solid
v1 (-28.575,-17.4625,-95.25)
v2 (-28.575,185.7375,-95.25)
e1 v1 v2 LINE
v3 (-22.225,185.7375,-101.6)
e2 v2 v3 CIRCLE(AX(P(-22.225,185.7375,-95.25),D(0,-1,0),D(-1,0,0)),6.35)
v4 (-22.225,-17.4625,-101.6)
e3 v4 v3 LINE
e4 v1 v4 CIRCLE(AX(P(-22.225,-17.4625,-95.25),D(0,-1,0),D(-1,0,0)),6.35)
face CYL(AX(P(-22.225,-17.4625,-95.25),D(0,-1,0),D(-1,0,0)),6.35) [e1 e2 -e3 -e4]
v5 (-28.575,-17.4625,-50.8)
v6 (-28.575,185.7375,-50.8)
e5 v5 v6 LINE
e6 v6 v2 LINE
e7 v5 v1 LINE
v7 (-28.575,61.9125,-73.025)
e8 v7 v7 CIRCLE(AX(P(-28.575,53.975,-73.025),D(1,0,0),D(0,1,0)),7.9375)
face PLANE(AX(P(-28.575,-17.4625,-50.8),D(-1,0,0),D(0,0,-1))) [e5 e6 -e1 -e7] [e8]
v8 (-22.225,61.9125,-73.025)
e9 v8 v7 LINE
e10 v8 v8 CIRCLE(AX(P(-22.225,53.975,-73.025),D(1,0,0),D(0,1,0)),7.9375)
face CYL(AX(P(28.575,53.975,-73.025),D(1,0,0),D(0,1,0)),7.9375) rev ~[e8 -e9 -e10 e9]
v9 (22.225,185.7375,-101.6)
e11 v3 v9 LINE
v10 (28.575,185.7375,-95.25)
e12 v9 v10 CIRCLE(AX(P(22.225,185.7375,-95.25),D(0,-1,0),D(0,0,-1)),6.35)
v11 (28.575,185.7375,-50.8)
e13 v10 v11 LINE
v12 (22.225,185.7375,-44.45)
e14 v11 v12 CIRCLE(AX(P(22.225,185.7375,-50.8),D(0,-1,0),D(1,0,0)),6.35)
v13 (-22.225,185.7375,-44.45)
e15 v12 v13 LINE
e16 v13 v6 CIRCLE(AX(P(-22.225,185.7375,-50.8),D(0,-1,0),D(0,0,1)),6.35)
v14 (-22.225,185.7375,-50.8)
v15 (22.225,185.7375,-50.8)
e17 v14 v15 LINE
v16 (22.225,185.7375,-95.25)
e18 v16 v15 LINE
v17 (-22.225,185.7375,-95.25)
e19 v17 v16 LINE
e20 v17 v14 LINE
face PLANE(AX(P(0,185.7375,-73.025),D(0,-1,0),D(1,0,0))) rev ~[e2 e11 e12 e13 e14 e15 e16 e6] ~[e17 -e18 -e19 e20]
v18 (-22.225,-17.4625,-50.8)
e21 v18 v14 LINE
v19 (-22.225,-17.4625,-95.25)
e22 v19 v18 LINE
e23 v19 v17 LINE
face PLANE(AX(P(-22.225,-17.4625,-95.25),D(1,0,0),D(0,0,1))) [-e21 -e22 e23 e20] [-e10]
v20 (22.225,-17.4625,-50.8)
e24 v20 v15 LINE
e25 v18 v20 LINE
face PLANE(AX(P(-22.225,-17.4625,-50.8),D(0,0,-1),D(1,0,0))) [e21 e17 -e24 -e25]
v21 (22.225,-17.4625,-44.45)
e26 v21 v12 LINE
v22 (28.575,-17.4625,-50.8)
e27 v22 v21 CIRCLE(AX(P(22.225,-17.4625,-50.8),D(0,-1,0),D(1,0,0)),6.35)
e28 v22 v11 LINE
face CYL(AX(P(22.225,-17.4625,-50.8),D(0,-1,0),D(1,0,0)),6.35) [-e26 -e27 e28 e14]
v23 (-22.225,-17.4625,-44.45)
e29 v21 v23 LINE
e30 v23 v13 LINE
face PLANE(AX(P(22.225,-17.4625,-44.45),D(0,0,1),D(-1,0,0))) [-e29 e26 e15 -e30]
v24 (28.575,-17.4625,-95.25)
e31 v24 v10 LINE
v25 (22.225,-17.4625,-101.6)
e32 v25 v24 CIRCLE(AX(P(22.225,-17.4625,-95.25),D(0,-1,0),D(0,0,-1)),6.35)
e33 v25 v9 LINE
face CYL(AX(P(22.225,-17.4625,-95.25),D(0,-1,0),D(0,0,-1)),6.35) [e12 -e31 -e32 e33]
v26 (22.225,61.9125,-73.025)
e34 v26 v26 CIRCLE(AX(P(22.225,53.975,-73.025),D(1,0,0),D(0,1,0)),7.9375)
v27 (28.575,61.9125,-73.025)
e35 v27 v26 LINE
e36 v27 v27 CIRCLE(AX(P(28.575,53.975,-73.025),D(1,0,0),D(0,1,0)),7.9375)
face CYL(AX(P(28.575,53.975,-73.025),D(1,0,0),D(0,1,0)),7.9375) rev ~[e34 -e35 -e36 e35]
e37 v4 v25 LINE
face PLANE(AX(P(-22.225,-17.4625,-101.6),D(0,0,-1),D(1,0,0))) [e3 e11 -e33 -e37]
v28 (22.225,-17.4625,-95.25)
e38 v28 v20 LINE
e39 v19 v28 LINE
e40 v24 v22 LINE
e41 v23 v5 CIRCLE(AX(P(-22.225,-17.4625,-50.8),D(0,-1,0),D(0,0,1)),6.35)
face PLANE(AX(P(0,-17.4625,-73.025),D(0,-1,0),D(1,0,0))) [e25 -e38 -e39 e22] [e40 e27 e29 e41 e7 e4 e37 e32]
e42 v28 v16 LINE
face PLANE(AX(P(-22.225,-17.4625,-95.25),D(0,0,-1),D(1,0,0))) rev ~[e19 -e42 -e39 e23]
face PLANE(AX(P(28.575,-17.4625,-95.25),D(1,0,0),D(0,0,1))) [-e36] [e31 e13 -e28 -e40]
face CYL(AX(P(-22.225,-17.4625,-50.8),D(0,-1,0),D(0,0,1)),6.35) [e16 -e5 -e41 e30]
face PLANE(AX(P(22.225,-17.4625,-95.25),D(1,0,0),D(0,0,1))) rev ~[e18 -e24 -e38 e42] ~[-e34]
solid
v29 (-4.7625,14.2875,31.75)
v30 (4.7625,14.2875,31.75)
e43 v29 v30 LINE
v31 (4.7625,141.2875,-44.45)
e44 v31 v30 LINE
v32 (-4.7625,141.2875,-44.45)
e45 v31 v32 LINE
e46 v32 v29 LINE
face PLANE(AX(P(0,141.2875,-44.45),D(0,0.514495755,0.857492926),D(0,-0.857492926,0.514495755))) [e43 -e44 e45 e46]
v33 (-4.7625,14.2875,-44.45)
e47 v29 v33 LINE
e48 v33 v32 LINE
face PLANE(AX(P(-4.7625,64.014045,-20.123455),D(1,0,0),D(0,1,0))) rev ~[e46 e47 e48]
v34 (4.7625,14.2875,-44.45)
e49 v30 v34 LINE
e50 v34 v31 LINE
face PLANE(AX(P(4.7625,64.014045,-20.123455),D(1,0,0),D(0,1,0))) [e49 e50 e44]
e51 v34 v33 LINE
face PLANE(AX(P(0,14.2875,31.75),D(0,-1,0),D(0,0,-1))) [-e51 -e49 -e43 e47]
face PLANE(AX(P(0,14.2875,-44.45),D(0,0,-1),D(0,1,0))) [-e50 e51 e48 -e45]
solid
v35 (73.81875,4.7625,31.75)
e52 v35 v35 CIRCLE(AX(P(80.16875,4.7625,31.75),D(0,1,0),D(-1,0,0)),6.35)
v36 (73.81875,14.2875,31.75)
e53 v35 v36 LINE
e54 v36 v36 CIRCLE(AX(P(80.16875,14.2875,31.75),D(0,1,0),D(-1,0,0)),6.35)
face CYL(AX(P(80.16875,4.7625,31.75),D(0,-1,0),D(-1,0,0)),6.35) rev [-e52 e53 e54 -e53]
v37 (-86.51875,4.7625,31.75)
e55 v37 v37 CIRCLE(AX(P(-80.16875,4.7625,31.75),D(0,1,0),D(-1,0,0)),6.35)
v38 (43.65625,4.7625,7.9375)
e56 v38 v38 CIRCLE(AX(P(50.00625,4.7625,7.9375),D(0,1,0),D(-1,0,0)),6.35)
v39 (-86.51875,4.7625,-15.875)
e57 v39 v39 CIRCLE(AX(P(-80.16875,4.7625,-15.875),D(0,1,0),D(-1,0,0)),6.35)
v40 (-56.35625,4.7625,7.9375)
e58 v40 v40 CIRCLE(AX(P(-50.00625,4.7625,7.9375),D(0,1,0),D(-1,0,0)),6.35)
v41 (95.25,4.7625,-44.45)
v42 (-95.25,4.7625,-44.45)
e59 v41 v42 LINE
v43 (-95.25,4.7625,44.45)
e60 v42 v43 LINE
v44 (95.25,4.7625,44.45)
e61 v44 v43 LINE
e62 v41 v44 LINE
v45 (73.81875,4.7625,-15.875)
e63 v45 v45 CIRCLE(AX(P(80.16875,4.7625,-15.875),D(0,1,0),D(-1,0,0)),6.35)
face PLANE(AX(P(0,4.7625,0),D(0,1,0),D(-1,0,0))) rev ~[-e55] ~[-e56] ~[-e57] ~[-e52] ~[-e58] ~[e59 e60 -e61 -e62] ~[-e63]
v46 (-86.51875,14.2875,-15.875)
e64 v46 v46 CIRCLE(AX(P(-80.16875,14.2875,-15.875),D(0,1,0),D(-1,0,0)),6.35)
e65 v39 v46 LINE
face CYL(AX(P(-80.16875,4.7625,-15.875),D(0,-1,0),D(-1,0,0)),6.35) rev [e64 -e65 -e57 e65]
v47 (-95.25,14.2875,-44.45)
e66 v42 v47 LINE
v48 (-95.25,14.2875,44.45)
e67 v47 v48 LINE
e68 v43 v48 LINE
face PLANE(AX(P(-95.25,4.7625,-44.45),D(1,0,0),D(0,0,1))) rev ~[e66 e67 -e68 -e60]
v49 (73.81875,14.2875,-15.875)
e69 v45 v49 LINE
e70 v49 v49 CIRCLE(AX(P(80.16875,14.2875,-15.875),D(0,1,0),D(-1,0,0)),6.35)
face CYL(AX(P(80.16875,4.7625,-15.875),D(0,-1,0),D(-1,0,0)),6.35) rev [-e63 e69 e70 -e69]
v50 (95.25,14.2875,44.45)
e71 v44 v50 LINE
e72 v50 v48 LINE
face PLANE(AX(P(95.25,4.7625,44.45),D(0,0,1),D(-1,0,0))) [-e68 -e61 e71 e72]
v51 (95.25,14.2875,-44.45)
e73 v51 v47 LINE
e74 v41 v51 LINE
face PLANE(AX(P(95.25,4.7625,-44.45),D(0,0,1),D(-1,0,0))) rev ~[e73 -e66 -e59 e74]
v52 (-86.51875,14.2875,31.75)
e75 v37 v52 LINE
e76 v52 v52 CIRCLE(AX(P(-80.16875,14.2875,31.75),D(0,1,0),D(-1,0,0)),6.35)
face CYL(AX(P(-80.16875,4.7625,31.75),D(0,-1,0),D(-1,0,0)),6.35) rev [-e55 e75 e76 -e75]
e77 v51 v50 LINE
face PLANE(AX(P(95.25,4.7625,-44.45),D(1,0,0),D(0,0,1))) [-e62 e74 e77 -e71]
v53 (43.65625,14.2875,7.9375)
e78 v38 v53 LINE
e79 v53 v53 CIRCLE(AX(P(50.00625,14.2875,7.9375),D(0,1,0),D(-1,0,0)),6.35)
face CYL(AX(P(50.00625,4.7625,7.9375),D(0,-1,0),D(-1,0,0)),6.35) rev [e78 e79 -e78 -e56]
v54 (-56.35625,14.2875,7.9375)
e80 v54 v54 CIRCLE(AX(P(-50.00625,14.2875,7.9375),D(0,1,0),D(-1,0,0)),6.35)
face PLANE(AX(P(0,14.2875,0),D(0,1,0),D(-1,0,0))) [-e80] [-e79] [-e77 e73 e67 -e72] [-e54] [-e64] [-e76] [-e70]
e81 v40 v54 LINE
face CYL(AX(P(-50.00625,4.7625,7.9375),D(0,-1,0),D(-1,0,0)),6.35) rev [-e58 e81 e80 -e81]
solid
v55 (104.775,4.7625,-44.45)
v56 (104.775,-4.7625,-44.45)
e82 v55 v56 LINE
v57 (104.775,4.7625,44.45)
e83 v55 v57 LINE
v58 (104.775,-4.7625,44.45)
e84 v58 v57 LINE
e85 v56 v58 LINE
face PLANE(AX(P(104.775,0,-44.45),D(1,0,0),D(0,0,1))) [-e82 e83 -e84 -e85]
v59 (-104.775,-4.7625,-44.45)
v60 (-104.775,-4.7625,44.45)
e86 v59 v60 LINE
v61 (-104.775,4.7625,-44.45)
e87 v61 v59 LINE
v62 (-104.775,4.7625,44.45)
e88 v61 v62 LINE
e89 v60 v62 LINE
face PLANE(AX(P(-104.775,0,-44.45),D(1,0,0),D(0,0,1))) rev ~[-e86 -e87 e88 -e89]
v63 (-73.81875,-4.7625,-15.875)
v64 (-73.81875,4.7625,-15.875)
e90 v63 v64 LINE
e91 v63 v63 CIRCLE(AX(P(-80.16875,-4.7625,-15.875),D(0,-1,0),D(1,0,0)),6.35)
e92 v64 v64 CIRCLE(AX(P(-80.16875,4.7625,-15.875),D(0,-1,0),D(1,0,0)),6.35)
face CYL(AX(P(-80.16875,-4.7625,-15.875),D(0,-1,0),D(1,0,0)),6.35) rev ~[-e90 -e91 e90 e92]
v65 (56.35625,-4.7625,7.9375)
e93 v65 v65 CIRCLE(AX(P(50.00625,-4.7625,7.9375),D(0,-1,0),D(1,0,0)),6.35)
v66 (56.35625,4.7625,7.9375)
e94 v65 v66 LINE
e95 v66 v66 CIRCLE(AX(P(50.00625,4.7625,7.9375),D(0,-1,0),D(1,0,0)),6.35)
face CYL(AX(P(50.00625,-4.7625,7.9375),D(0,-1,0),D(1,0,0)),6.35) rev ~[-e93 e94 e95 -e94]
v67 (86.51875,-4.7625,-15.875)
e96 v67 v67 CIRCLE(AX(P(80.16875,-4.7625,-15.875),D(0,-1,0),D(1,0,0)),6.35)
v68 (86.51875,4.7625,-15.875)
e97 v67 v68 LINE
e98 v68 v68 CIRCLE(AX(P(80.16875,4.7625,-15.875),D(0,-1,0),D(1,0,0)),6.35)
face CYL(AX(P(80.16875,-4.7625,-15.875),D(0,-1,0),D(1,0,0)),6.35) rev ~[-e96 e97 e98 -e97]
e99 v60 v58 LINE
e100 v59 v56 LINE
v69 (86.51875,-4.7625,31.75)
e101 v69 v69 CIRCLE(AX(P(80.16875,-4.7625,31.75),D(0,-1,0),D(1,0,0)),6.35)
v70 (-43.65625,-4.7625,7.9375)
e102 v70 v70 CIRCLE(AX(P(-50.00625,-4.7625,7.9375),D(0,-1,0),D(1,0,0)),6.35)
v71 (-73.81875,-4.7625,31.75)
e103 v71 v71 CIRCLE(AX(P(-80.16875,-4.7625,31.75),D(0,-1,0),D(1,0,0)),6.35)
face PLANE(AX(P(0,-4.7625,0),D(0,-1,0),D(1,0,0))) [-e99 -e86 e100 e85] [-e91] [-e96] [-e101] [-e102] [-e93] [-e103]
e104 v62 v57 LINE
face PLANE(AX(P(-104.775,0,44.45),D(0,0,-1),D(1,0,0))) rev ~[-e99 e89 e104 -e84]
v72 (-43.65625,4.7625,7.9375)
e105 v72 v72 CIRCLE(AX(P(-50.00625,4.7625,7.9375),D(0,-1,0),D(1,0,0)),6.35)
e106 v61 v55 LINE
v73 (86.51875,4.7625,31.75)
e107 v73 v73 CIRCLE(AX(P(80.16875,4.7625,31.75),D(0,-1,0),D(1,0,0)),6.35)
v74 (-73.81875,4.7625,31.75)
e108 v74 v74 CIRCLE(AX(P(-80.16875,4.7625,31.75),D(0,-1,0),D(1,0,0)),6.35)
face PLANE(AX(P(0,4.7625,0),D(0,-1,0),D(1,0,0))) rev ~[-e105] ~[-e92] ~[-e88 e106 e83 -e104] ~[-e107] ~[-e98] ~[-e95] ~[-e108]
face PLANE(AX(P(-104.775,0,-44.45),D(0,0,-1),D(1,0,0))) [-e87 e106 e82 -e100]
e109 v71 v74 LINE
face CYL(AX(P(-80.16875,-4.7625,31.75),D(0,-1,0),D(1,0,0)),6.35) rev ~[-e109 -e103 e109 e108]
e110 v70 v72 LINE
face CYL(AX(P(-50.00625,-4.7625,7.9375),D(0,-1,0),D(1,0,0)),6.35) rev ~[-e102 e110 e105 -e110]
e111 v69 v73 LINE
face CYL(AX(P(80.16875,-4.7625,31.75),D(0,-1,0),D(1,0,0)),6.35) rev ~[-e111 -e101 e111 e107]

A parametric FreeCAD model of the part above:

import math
import FreeCAD as App
import Part
import Sketcher

V = App.Vector
Q = App.Units.Quantity

doc = App.newDocument("Part")
body = doc.addObject("PartDesign::Body", "Body")

# Sketch on XZ plane
sketch1 = body.newObject("Sketcher::SketchObject", "Sketch")
sketch1.AttachmentSupport = (doc.getObject("XZ_Plane"), [""])
sketch1.MapMode = "FlatFace"
sketch1.addGeometry([
    Part.LineSegment(V(-105, 44, 0), V(-105, -44, 0)),
    Part.LineSegment(V(-105, -44, 0), V(105, -44, 0)),
    Part.LineSegment(V(105, -44, 0), V(105, 44, 0)),
    Part.LineSegment(V(105, 44, 0), V(-105, 44, 0)),
], False)
sketch1.addConstraint([
    Sketcher.Constraint("Coincident", 0, 2, 1, 1),
    Sketcher.Constraint("Coincident", 1, 2, 2, 1),
    Sketcher.Constraint("Coincident", 2, 2, 3, 1),
    Sketcher.Constraint("Coincident", 3, 2, 0, 1),
    Sketcher.Constraint("Vertical", 0),
    Sketcher.Constraint("Horizontal", 1),
    Sketcher.Constraint("Vertical", 2),
    Sketcher.Constraint("Horizontal", 3),
    Sketcher.Constraint("Symmetric", 0, 2, 2, 2, -1, 1),
    Sketcher.Constraint("DistanceY", 0, 2, 0, 1, Q("3.5 in")),
    Sketcher.Constraint("DistanceX", 1, 1, 1, 2, Q("8.25 in")),
])
pad1 = body.newObject("PartDesign::Pad", "Pad")
pad1.Profile = sketch1
pad1.Length = Q("0.375 in")
pad1.Midplane = True

# Sketch on XZ plane
sketch2 = body.newObject("Sketcher::SketchObject", "Sketch001")
sketch2.AttachmentSupport = (doc.getObject("XZ_Plane"), [""])
sketch2.MapMode = "FlatFace"
sketch2.AttachmentOffset = App.Placement(V(0, 0, 0.1875 * 25.4), App.Rotation())
sketch2.addGeometry([
    Part.Circle(V(-80, 32, 0), V(0, 0, 1), 6),  # 0
    Part.Circle(V(-50, 8, 0), V(0, 0, 1), 6),  # 1
    Part.Circle(V(-80, -16, 0), V(0, 0, 1), 6),  # 2
    Part.Circle(V(80, 32, 0), V(0, 0, 1), 6),  # 3
    Part.Circle(V(50, 8, 0), V(0, 0, 1), 6),  # 4
    Part.Circle(V(80, -16, 0), V(0, 0, 1), 6),  # 5
], False)
sketch2.addConstraint([
    Sketcher.Constraint("Equal", 0, 1),
    Sketcher.Constraint("Equal", 1, 2),
    Sketcher.Constraint("Equal", 2, 3),
    Sketcher.Constraint("Equal", 3, 4),
    Sketcher.Constraint("Equal", 4, 5),
    Sketcher.Constraint("Symmetric", 0, 3, 3, 3, -2),
    Sketcher.Constraint("Symmetric", 1, 3, 4, 3, -2),
    Sketcher.Constraint("Symmetric", 2, 3, 5, 3, -2),
    Sketcher.Constraint("Vertical", 0, 3, 2, 3),
    Sketcher.Constraint("Diameter", 0, Q("0.5 in")),
    Sketcher.Constraint("DistanceY", -1, 1, 0, 3, Q("1.25 in")),
    Sketcher.Constraint("DistanceX", 0, 3, -1, 1, Q("3.15625 in")),
    Sketcher.Constraint("DistanceX", 1, 3, -1, 1, Q("1.96875 in")),
    Sketcher.Constraint("DistanceY", -1, 1, 1, 3, Q("0.3125 in")),
    Sketcher.Constraint("DistanceY", 2, 3, -1, 1, Q("0.625 in")),
])
pocket1 = body.newObject("PartDesign::Pocket", "Pocket")
pocket1.Profile = sketch2
pocket1.Type = "ThroughAll"
body2 = doc.addObject("PartDesign::Body", "Body001")

# Sketch on XZ plane
sketch3 = body2.newObject("Sketcher::SketchObject", "Sketch002")
sketch3.AttachmentSupport = (doc.getObject("XZ_Plane001"), [""])
sketch3.MapMode = "FlatFace"
sketch3.AttachmentOffset = App.Placement(V(0, 0, -0.1875 * 25.4), App.Rotation())
sketch3.addGeometry([
    Part.LineSegment(V(95, 44, 0), V(95, -44, 0)),  # 0
    Part.LineSegment(V(95, -44, 0), V(-95, -44, 0)),  # 1
    Part.LineSegment(V(-95, -44, 0), V(-95, 44, 0)),  # 2
    Part.LineSegment(V(-95, 44, 0), V(95, 44, 0)),  # 3
    Part.Circle(V(80, -16, 0), V(0, 0, 1), 6),  # 4
    Part.Circle(V(-80, -16, 0), V(0, 0, 1), 6),  # 5
    Part.Circle(V(50, 8, 0), V(0, 0, 1), 6),  # 6
    Part.Circle(V(80, 32, 0), V(0, 0, 1), 6),  # 7
    Part.Circle(V(-50, 8, 0), V(0, 0, 1), 6),  # 8
    Part.Circle(V(-80, 32, 0), V(0, 0, 1), 6),  # 9
], False)
sketch3.addConstraint([
    Sketcher.Constraint("Coincident", 0, 2, 1, 1),
    Sketcher.Constraint("Coincident", 1, 2, 2, 1),
    Sketcher.Constraint("Coincident", 2, 2, 3, 1),
    Sketcher.Constraint("Coincident", 3, 2, 0, 1),
    Sketcher.Constraint("Vertical", 0),
    Sketcher.Constraint("Horizontal", 1),
    Sketcher.Constraint("Vertical", 2),
    Sketcher.Constraint("Horizontal", 3),
    Sketcher.Constraint("Equal", 4, 5),
    Sketcher.Constraint("Equal", 5, 6),
    Sketcher.Constraint("Equal", 6, 7),
    Sketcher.Constraint("Equal", 7, 8),
    Sketcher.Constraint("Equal", 8, 9),
    Sketcher.Constraint("Symmetric", 0, 2, 2, 2, -1, 1),
    Sketcher.Constraint("Symmetric", 4, 3, 5, 3, -2),
    Sketcher.Constraint("Symmetric", 6, 3, 8, 3, -2),
    Sketcher.Constraint("Symmetric", 7, 3, 9, 3, -2),
    Sketcher.Constraint("Vertical", 4, 3, 7, 3),
    Sketcher.Constraint("Diameter", 4, Q("0.5 in")),
    Sketcher.Constraint("DistanceX", 1, 2, 1, 1, Q("7.5 in")),
    Sketcher.Constraint("DistanceY", 0, 2, 0, 1, Q("3.5 in")),
    Sketcher.Constraint("DistanceY", 0, 2, 7, 3, Q("3 in")),
    Sketcher.Constraint("DistanceX", -1, 1, 4, 3, Q("3.15625 in")),
    Sketcher.Constraint("DistanceY", 4, 3, -1, 1, Q("0.625 in")),
    Sketcher.Constraint("DistanceX", -1, 1, 6, 3, Q("1.96875 in")),
    Sketcher.Constraint("DistanceY", -1, 1, 6, 3, Q("0.3125 in")),
])
pad2 = body2.newObject("PartDesign::Pad", "Pad001")
pad2.Profile = sketch3
pad2.Length = Q("0.375 in")
pad2.Reversed = True
body3 = doc.addObject("PartDesign::Body", "Body002")

# Sketch on XZ plane
sketch4 = body3.newObject("Sketcher::SketchObject", "Sketch003")
sketch4.AttachmentSupport = (doc.getObject("XZ_Plane002"), [""])
sketch4.MapMode = "FlatFace"
sketch4.AttachmentOffset = App.Placement(V(0, 0, 0.6875 * 25.4), App.Rotation())
sketch4.addGeometry([
    Part.LineSegment(V(-22, -102, 0), V(22, -102, 0)),  # 0
    Part.ArcOfCircle(Part.Circle(V(22, -95, 0), V(0, 0, 1), 6), math.radians(-90), math.radians(0)),  # 1
    Part.LineSegment(V(29, -95, 0), V(29, -51, 0)),  # 2
    Part.ArcOfCircle(Part.Circle(V(22, -51, 0), V(0, 0, 1), 6), math.radians(0), math.radians(90)),  # 3
    Part.LineSegment(V(22, -44, 0), V(-22, -44, 0)),  # 4
    Part.ArcOfCircle(Part.Circle(V(-22, -51, 0), V(0, 0, 1), 6), math.radians(90), math.radians(180)),  # 5
    Part.LineSegment(V(-29, -51, 0), V(-29, -95, 0)),  # 6
    Part.ArcOfCircle(Part.Circle(V(-22, -95, 0), V(0, 0, 1), 6), math.radians(180), math.radians(270)),  # 7
    Part.LineSegment(V(22, -95, 0), V(-22, -95, 0)),  # 8
    Part.LineSegment(V(-22, -95, 0), V(-22, -51, 0)),  # 9
    Part.LineSegment(V(-22, -51, 0), V(22, -51, 0)),  # 10
    Part.LineSegment(V(22, -51, 0), V(22, -95, 0)),  # 11
], False)
sketch4.addConstraint([
    Sketcher.Constraint("Tangent", 0, 2, 1, 1),
    Sketcher.Constraint("Tangent", 1, 2, 2, 1),
    Sketcher.Constraint("Tangent", 2, 2, 3, 1),
    Sketcher.Constraint("Tangent", 3, 2, 4, 1),
    Sketcher.Constraint("Tangent", 4, 2, 5, 1),
    Sketcher.Constraint("Tangent", 5, 2, 6, 1),
    Sketcher.Constraint("Tangent", 6, 2, 7, 1),
    Sketcher.Constraint("Tangent", 7, 2, 0, 1),
    Sketcher.Constraint("Coincident", 8, 2, 9, 1),
    Sketcher.Constraint("Coincident", 9, 2, 10, 1),
    Sketcher.Constraint("Coincident", 10, 2, 11, 1),
    Sketcher.Constraint("Coincident", 11, 2, 8, 1),
    Sketcher.Constraint("Horizontal", 0),
    Sketcher.Constraint("Vertical", 2),
    Sketcher.Constraint("Horizontal", 4),
    Sketcher.Constraint("Vertical", 6),
    Sketcher.Constraint("Horizontal", 8),
    Sketcher.Constraint("Vertical", 9),
    Sketcher.Constraint("Horizontal", 10),
    Sketcher.Constraint("Vertical", 11),
    Sketcher.Constraint("Coincident", 8, 2, 7, 3),
    Sketcher.Constraint("Coincident", 9, 2, 5, 3),
    Sketcher.Constraint("Coincident", 10, 2, 3, 3),
    Sketcher.Constraint("Equal", 1, 3),
    Sketcher.Constraint("Equal", 10, 2),
    Sketcher.Constraint("Radius", 1, Q("0.25 in")),
    Sketcher.Constraint("DistanceY", 3, 3, -1, 1, Q("2 in")),
    Sketcher.Constraint("DistanceY", 0, 2, -1, 1, Q("4 in")),
    Sketcher.Constraint("DistanceX", -1, 1, 1, 3, Q("0.875 in")),
])
pad3 = body3.newObject("PartDesign::Pad", "Pad002")
pad3.Profile = sketch4
pad3.Length = Q("8 in")
pad3.Reversed = True

# Sketch on YZ plane
sketch5 = body3.newObject("Sketcher::SketchObject", "Sketch004")
sketch5.AttachmentSupport = (doc.getObject("YZ_Plane002"), [""])
sketch5.MapMode = "FlatFace"
sketch5.AttachmentOffset = App.Placement(V(0, 0, 1.125 * 25.4), App.Rotation())
sketch5.addGeometry(Part.Circle(V(54, -73, 0), V(0, 0, 1), 8), False)
sketch5.addConstraint([
    Sketcher.Constraint("Diameter", 0, Q("0.625 in")),
    Sketcher.Constraint("DistanceX", -1, 1, 0, 3, Q("2.125 in")),
    Sketcher.Constraint("DistanceY", 0, 3, -1, 1, Q("2.875 in")),
])
pocket2 = body3.newObject("PartDesign::Pocket", "Pocket001")
pocket2.Profile = sketch5
pocket2.Type = "ThroughAll"
body4 = doc.addObject("PartDesign::Body", "Body003")

# Sketch on YZ plane
sketch6 = body4.newObject("Sketcher::SketchObject", "Sketch005")
sketch6.AttachmentSupport = (doc.getObject("YZ_Plane003"), [""])
sketch6.MapMode = "FlatFace"
sketch6.addGeometry([
    Part.LineSegment(V(141, -44, 0), V(14, 32, 0)),
    Part.LineSegment(V(14, 32, 0), V(14, -44, 0)),
    Part.LineSegment(V(14, -44, 0), V(141, -44, 0)),
], False)
sketch6.addConstraint([
    Sketcher.Constraint("Coincident", 0, 2, 1, 1),
    Sketcher.Constraint("Coincident", 1, 2, 2, 1),
    Sketcher.Constraint("Coincident", 2, 2, 0, 1),
    Sketcher.Constraint("Vertical", 1),
    Sketcher.Constraint("Horizontal", 2),
    Sketcher.Constraint("DistanceX", 2, 1, 2, 2, Q("5 in")),
    Sketcher.Constraint("DistanceY", 1, 2, 1, 1, Q("3 in")),
    Sketcher.Constraint("DistanceY", -1, 1, 0, 2, Q("1.25 in")),
    Sketcher.Constraint("DistanceX", -1, 1, 0, 2, Q("0.5625 in")),
])
pad4 = body4.newObject("PartDesign::Pad", "Pad003")
pad4.Profile = sketch6
pad4.Length = Q("0.375 in")
pad4.Midplane = True

doc.recompute()
